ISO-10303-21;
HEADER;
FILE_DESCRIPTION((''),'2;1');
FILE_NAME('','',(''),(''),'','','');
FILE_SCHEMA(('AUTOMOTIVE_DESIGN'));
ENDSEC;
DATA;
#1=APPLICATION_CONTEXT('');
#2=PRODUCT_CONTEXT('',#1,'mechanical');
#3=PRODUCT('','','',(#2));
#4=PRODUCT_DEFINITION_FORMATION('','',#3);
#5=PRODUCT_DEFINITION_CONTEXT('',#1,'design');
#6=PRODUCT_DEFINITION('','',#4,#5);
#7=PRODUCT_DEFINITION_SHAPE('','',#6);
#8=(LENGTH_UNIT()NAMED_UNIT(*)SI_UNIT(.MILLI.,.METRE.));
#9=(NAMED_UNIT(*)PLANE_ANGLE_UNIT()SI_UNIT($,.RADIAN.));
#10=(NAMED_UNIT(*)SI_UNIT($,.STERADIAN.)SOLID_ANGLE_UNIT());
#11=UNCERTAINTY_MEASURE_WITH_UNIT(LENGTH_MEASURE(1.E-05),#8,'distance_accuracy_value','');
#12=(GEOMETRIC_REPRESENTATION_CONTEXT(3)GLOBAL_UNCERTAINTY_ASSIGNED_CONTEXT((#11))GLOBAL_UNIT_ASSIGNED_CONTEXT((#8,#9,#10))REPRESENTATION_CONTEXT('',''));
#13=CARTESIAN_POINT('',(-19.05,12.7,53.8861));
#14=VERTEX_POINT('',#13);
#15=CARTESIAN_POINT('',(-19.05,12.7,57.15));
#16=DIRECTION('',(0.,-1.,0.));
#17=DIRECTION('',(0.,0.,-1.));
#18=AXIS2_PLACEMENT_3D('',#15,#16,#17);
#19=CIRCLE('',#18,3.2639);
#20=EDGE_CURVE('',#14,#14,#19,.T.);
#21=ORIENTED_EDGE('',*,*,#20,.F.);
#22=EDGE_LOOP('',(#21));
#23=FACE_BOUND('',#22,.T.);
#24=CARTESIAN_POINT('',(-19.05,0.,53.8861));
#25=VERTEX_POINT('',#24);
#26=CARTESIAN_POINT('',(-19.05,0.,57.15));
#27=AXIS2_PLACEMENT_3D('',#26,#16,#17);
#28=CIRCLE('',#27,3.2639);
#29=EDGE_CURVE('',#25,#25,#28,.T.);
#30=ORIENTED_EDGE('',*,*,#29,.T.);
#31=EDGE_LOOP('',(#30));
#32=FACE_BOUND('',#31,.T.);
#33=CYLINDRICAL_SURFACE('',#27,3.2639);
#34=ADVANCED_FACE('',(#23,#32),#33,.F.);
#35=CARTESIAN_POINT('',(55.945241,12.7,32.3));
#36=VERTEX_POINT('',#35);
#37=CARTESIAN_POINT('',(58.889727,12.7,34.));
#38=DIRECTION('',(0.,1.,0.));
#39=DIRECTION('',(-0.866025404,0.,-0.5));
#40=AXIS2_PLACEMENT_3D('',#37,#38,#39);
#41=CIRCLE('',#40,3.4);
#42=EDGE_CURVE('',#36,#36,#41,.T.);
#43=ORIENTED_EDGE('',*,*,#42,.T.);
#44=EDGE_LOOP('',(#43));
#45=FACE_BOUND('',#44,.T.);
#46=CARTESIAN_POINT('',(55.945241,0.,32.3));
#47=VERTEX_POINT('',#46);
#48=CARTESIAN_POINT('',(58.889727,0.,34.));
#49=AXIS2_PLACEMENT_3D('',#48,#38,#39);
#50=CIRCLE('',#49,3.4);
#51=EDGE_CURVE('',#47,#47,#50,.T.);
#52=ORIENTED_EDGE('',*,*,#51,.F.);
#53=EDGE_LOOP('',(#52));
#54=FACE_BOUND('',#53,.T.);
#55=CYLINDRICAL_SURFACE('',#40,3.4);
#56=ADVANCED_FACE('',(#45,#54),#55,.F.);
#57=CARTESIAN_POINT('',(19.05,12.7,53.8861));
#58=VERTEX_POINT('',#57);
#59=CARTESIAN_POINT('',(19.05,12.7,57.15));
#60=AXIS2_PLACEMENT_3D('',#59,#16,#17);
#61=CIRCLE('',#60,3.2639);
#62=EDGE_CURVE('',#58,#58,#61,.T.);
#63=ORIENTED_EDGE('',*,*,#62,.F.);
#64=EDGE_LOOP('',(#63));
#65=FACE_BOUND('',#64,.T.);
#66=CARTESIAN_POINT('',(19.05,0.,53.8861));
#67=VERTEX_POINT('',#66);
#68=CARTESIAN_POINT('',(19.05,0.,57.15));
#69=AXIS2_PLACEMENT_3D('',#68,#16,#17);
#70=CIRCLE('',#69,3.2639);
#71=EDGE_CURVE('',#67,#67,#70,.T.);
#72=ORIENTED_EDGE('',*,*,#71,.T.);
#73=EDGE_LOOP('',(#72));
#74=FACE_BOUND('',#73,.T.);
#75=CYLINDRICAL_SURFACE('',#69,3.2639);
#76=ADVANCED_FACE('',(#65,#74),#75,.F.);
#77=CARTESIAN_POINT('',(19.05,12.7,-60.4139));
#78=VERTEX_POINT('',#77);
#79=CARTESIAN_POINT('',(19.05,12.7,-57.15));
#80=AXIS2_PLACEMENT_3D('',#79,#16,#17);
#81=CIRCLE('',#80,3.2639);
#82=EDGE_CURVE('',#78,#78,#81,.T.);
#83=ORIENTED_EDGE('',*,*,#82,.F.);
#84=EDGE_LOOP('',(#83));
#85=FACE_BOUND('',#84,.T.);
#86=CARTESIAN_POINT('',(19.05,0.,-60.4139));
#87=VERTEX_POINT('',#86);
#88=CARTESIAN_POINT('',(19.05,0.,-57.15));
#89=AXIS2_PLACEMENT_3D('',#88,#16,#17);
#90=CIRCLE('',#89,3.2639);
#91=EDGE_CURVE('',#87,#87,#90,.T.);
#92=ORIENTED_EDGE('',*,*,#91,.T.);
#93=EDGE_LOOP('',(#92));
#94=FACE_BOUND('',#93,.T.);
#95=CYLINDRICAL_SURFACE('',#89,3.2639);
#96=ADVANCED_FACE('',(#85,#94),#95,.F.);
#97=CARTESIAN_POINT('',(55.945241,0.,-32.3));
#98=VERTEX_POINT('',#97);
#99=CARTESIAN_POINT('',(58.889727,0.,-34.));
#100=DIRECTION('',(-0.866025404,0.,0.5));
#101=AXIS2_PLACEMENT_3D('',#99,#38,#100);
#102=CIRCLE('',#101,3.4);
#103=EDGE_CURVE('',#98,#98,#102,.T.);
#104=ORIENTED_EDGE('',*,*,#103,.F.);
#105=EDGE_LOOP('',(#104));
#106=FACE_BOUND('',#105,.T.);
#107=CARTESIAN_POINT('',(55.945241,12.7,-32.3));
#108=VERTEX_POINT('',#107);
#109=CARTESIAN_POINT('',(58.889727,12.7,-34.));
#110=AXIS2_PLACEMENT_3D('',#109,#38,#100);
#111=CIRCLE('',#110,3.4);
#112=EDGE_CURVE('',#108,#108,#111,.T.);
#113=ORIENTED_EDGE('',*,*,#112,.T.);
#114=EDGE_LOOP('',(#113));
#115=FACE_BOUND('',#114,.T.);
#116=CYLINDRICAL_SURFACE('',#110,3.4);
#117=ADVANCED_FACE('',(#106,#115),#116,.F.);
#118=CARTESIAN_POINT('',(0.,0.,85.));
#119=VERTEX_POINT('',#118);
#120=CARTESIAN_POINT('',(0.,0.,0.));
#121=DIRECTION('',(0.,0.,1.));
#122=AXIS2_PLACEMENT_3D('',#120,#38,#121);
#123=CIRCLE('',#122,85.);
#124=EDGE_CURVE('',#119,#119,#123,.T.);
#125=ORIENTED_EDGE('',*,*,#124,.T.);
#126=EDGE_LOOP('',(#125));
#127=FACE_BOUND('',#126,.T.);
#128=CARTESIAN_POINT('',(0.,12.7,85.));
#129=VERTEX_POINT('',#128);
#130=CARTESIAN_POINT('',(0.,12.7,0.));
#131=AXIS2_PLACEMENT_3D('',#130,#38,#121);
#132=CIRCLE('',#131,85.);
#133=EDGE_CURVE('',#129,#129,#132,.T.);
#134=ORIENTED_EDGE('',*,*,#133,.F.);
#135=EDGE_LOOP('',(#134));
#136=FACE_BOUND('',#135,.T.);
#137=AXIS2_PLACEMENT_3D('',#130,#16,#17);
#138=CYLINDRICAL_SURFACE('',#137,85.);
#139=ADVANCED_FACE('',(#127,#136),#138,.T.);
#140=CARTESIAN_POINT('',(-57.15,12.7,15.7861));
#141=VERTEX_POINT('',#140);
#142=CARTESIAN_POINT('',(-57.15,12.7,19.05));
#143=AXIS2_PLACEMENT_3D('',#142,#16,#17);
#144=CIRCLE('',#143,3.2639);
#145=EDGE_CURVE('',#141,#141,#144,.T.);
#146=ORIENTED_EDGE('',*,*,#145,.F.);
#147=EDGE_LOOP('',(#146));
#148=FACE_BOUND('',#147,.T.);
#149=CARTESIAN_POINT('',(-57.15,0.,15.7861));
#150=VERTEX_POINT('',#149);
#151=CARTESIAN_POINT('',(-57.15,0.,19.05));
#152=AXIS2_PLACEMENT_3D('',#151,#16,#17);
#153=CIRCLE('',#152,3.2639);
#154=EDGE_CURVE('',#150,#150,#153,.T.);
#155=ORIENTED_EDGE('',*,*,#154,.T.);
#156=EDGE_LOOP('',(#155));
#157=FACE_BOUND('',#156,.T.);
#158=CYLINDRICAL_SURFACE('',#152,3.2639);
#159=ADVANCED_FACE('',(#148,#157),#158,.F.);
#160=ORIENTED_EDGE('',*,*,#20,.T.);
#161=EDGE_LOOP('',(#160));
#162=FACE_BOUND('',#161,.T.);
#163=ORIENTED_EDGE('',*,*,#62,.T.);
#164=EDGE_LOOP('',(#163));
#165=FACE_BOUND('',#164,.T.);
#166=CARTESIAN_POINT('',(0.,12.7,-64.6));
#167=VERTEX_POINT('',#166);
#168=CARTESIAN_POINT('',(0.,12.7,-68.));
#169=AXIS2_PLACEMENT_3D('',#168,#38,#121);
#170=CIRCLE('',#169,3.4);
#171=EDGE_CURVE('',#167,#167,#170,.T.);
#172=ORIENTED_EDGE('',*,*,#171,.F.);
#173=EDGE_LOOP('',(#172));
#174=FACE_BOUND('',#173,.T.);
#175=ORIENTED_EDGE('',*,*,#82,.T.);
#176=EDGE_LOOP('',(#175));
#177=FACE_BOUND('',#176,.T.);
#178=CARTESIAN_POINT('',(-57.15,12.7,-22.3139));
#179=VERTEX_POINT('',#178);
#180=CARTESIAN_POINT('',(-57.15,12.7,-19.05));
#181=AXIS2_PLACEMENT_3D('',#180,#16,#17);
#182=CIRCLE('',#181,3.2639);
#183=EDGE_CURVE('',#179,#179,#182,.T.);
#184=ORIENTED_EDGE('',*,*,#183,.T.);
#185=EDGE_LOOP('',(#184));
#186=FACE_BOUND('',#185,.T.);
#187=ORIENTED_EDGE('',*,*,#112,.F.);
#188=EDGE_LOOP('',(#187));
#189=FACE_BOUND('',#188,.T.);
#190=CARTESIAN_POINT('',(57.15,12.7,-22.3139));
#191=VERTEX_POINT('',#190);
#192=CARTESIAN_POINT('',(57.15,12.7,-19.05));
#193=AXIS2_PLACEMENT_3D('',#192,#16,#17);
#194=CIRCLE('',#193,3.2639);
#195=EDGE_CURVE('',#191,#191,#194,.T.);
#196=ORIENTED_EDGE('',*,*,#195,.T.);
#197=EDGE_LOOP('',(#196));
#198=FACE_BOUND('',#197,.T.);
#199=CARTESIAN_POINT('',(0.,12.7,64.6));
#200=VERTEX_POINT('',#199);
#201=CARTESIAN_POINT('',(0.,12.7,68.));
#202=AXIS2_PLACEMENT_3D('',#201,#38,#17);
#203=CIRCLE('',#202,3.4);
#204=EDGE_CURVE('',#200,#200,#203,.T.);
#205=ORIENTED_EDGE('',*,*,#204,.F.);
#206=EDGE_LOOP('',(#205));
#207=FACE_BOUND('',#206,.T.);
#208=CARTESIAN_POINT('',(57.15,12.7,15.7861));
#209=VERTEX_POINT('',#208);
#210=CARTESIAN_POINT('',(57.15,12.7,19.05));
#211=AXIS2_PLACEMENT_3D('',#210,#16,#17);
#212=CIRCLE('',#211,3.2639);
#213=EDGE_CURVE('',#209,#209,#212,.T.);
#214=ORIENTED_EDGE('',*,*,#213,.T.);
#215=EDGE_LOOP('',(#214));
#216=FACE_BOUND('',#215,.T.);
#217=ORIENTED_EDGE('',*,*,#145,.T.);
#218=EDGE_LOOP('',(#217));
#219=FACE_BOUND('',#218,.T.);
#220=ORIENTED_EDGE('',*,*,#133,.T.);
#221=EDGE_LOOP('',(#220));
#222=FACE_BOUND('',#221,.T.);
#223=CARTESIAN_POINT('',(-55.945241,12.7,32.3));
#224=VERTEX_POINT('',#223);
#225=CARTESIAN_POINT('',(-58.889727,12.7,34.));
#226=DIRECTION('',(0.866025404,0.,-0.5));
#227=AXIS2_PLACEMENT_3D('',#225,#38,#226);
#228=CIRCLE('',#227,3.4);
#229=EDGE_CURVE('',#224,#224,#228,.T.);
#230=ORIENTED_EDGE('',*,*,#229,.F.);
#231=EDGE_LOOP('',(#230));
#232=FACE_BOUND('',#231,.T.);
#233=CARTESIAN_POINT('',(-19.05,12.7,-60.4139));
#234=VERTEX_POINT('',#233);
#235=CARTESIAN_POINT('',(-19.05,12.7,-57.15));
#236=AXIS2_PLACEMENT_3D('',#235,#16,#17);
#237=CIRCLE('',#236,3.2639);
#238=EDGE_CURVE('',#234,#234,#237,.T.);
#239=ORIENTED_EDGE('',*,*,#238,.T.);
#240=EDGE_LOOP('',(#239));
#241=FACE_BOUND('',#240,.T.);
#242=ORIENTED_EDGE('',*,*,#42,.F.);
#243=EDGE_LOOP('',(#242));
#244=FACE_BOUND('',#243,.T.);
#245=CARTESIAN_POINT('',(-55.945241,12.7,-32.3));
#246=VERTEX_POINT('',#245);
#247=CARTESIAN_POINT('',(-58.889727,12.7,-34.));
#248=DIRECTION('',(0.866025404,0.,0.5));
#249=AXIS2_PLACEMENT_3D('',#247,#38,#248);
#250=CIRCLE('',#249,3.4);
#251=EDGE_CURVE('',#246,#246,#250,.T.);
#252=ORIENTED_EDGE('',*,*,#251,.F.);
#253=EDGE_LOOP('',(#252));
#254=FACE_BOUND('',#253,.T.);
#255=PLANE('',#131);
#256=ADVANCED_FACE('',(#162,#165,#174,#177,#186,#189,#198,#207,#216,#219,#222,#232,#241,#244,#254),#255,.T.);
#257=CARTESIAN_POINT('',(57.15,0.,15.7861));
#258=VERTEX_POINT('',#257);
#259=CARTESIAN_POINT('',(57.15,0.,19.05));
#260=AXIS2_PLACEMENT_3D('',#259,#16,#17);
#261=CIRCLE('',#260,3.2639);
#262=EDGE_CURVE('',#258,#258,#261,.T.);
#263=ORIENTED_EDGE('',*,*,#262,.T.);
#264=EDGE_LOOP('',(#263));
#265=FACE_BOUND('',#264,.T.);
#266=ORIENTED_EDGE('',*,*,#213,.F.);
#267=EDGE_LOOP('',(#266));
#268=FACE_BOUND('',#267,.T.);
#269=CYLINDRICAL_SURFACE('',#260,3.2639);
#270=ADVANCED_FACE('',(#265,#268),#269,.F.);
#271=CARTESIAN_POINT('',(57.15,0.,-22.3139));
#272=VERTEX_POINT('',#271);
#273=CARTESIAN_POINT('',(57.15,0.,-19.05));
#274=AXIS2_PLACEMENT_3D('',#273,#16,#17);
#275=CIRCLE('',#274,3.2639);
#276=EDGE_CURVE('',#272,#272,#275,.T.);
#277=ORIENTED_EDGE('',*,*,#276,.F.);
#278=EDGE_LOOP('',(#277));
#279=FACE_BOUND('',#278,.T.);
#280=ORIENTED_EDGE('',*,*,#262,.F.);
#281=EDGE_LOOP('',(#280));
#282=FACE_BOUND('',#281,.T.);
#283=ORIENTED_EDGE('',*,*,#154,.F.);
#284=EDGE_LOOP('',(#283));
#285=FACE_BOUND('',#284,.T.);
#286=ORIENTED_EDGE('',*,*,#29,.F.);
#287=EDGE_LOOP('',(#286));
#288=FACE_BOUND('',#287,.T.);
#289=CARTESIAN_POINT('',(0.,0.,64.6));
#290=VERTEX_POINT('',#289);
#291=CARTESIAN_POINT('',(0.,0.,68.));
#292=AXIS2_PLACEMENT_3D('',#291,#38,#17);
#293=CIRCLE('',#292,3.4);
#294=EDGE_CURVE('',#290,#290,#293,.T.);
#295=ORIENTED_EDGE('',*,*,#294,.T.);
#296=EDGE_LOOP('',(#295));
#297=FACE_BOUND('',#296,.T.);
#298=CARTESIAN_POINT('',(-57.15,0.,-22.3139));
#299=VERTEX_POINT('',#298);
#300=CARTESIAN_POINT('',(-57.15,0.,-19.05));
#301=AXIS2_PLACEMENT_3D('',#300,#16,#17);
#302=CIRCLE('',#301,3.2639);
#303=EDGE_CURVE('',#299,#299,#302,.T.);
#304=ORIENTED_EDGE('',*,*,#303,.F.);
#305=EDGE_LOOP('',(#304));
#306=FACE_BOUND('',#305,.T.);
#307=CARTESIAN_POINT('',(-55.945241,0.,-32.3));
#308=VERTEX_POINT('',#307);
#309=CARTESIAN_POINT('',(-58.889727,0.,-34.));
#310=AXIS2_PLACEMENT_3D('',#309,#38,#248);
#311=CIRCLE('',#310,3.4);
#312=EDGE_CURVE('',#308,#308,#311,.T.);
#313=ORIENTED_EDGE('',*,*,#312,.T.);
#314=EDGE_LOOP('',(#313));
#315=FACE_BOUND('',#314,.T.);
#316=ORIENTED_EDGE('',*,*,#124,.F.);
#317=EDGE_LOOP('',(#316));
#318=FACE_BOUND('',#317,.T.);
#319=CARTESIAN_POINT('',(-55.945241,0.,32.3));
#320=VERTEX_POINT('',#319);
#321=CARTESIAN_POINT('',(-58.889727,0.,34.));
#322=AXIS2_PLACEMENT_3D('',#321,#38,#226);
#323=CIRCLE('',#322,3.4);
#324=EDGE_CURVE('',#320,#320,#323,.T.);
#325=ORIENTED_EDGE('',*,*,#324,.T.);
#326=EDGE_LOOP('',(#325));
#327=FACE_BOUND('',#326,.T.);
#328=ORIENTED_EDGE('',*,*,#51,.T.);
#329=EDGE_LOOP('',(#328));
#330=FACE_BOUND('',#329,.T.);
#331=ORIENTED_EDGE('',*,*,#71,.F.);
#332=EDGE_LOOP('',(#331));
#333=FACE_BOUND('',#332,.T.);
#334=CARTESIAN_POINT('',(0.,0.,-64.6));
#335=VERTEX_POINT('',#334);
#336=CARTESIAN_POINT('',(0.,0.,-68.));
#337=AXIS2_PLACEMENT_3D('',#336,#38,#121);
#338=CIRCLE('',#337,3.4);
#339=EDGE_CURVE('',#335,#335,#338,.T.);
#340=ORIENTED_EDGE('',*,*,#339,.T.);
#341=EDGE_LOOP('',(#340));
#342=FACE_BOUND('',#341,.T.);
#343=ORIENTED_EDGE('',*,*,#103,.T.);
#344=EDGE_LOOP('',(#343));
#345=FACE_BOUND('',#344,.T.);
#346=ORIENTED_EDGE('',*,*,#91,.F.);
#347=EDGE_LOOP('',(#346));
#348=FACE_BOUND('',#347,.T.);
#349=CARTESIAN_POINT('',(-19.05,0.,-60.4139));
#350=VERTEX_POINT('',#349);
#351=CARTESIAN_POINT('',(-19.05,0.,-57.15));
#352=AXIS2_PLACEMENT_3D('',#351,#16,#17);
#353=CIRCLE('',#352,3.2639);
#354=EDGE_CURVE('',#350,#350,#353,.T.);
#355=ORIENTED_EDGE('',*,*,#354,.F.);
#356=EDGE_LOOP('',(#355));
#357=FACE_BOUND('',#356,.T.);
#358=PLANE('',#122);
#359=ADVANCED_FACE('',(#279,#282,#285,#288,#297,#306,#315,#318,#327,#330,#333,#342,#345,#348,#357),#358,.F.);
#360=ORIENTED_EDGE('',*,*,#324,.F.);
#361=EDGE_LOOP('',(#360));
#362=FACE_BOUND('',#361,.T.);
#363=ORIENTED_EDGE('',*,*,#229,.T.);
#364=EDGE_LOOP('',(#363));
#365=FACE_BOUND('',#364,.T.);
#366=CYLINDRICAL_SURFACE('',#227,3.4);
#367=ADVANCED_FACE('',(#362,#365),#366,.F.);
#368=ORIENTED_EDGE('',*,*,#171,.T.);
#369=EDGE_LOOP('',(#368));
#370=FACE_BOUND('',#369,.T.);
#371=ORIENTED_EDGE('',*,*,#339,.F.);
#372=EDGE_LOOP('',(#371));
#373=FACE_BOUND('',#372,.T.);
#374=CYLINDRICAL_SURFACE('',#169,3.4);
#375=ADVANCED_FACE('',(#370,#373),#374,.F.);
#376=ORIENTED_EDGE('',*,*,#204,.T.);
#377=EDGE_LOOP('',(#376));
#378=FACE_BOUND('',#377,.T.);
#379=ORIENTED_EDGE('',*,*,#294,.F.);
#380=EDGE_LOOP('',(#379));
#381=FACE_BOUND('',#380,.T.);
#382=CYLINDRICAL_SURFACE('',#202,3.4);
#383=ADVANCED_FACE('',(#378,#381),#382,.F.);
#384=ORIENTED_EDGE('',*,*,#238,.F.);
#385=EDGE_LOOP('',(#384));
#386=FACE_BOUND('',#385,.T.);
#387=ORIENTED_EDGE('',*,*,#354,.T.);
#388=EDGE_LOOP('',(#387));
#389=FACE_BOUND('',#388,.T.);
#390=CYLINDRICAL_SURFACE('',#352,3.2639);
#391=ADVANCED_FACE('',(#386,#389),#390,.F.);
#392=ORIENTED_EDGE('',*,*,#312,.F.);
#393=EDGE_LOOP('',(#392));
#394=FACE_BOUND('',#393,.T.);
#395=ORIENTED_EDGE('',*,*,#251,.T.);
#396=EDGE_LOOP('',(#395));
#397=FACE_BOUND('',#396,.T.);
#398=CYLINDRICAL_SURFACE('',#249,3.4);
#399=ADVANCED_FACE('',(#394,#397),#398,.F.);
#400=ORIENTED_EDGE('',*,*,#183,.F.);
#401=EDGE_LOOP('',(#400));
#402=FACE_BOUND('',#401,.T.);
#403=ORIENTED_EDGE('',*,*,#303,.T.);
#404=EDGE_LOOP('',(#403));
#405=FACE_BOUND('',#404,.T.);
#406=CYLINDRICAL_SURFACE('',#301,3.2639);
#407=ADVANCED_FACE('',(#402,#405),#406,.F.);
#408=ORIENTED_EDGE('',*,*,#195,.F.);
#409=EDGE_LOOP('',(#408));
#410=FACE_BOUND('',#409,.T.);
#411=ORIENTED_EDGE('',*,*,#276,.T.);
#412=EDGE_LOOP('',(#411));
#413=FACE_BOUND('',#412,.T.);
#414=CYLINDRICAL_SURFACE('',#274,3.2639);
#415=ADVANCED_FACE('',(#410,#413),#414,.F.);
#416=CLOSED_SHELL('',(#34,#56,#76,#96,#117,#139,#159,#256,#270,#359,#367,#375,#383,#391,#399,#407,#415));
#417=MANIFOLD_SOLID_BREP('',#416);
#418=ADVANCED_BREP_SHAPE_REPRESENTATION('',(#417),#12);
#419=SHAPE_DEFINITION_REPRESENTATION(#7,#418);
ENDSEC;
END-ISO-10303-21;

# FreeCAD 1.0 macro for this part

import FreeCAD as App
import Part
import Sketcher
from FreeCAD import Vector
Q = App.Units.Quantity

doc = App.newDocument("Part")
body = doc.addObject("PartDesign::Body", "Body")

sketch1 = body.newObject("Sketcher::SketchObject", "Sketch")
sketch1.AttachmentSupport = (doc.getObject("XZ_Plane"), [""])
sketch1.MapMode = "FlatFace"
sketch1.addGeometry(Part.Circle(Vector(0, 0, 0), Vector(0, 0, 1), 85), False)
sketch1.addConstraint(Sketcher.Constraint("Coincident", 0, 3, -1, 1))
sketch1.addConstraint(Sketcher.Constraint("Diameter", 0, Q("170 mm")))
pad1 = body.newObject("PartDesign::Pad", "Pad")
pad1.Profile = sketch1
pad1.Length = 12.7
pad1.Reversed = True

sketch2 = body.newObject("Sketcher::SketchObject", "Sketch001")
sketch2.AttachmentSupport = (doc.getObject("XZ_Plane"), [""])
sketch2.MapMode = "FlatFace"
sketch2.AttachmentOffset = App.Placement(Vector(0, 0, -12.7), App.Rotation())
sketch2.addGeometry(Part.Circle(Vector(0, -68, 0), Vector(0, 0, 1), 3.4), False)
sketch2.addConstraint(Sketcher.Constraint("PointOnObject", 0, 3, -2))
sketch2.addConstraint(Sketcher.Constraint("Diameter", 0, Q("6.8 mm")))
sketch2.addConstraint(Sketcher.Constraint("DistanceY", 0, 3, -1, 1, Q("68 mm")))
doc.recompute()
hole = body.newObject("PartDesign::Hole", "Hole")
hole.Profile = sketch2
hole.ThreadType = "None"
hole.Diameter = 6.8
hole.DepthType = "ThroughAll"
hole.Reversed = True
doc.recompute()

polarpattern = body.newObject("PartDesign::PolarPattern", "PolarPattern")
polarpattern.Originals = [hole]
polarpattern.Axis = (doc.getObject("Y_Axis"), [""])
polarpattern.Angle = 360
polarpattern.Occurrences = 6
body.Tip = polarpattern

sketch3 = body.newObject("Sketcher::SketchObject", "Sketch002")
sketch3.AttachmentSupport = (doc.getObject("XZ_Plane"), [""])
sketch3.MapMode = "FlatFace"
sketch3.addGeometry(Part.Circle(Vector(19, -57.1, 0), Vector(0, 0, 1), 3.3), False)
sketch3.addGeometry(Part.Circle(Vector(-19, -57.1, 0), Vector(0, 0, 1), 3.3), False)
sketch3.addConstraint(Sketcher.Constraint("Equal", 0, 1))
sketch3.addConstraint(Sketcher.Constraint("Symmetric", 0, 3, 1, 3, -2))
sketch3.addConstraint(Sketcher.Constraint("Diameter", 0, Q("6.5278 mm")))
sketch3.addConstraint(Sketcher.Constraint("DistanceX", 1, 3, 0, 3, Q("38.1 mm")))
sketch3.addConstraint(Sketcher.Constraint("DistanceY", 0, 3, -1, 1, Q("57.15 mm")))
doc.recompute()
hole2 = body.newObject("PartDesign::Hole", "Hole001")
hole2.Profile = sketch3
hole2.ThreadType = "None"
hole2.Diameter = 6.5278
hole2.DepthType = "ThroughAll"
doc.recompute()

polarpattern2 = body.newObject("PartDesign::PolarPattern", "PolarPattern001")
polarpattern2.Originals = [hole2]
polarpattern2.Axis = (doc.getObject("Y_Axis"), [""])
polarpattern2.Angle = 360
polarpattern2.Occurrences = 4
body.Tip = polarpattern2

doc.recompute()
